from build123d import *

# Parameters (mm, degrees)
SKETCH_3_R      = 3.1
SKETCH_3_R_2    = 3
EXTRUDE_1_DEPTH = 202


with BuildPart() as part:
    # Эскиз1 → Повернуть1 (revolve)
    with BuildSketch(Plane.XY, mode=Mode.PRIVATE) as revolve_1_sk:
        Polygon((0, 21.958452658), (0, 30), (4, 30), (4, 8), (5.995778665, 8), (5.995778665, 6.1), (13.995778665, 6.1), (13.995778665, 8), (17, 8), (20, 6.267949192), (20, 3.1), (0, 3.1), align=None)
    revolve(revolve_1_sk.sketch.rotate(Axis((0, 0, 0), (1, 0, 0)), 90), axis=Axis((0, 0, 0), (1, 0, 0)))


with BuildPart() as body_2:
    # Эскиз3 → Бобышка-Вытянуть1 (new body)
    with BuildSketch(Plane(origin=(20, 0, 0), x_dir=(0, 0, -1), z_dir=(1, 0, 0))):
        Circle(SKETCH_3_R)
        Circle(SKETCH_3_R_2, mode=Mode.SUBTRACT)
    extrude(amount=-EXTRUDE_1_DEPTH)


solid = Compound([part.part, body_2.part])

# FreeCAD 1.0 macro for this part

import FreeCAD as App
import Part
import Sketcher
from FreeCAD import Vector
Q = App.Units.Quantity

doc = App.newDocument("Part")
body = doc.addObject("PartDesign::Body", "Body")

sketch1 = body.newObject("Sketcher::SketchObject", "Sketch")
sketch1.AttachmentSupport = (doc.getObject("XY_Plane"), [""])
sketch1.MapMode = "FlatFace"
sketch1.addGeometry(Part.LineSegment(Vector(0, 30, 0), Vector(0, 3.1, 0)), False)
sketch1.addGeometry(Part.LineSegment(Vector(0, 3.1, 0), Vector(20, 3.1, 0)), False)
sketch1.addGeometry(Part.LineSegment(Vector(20, 3.1, 0), Vector(20, 6.3, 0)), False)
sketch1.addGeometry(Part.LineSegment(Vector(20, 6.3, 0), Vector(17, 8, 0)), False)
sketch1.addGeometry(Part.LineSegment(Vector(17, 8, 0), Vector(14, 8, 0)), False)
sketch1.addGeometry(Part.LineSegment(Vector(14, 8, 0), Vector(14, 6.1, 0)), False)
sketch1.addGeometry(Part.LineSegment(Vector(14, 6.1, 0), Vector(6, 6.1, 0)), False)
sketch1.addGeometry(Part.LineSegment(Vector(6, 6.1, 0), Vector(6, 8, 0)), False)
sketch1.addGeometry(Part.LineSegment(Vector(6, 8, 0), Vector(4, 8, 0)), False)
sketch1.addGeometry(Part.LineSegment(Vector(4, 8, 0), Vector(4, 30, 0)), False)
sketch1.addGeometry(Part.LineSegment(Vector(4, 30, 0), Vector(0, 30, 0)), False)
sketch1.addConstraint(Sketcher.Constraint("Coincident", 0, 2, 1, 1))
sketch1.addConstraint(Sketcher.Constraint("Coincident", 1, 2, 2, 1))
sketch1.addConstraint(Sketcher.Constraint("Coincident", 2, 2, 3, 1))
sketch1.addConstraint(Sketcher.Constraint("Coincident", 3, 2, 4, 1))
sketch1.addConstraint(Sketcher.Constraint("Coincident", 4, 2, 5, 1))
sketch1.addConstraint(Sketcher.Constraint("Coincident", 5, 2, 6, 1))
sketch1.addConstraint(Sketcher.Constraint("Coincident", 6, 2, 7, 1))
sketch1.addConstraint(Sketcher.Constraint("Coincident", 7, 2, 8, 1))
sketch1.addConstraint(Sketcher.Constraint("Coincident", 8, 2, 9, 1))
sketch1.addConstraint(Sketcher.Constraint("Coincident", 9, 2, 10, 1))
sketch1.addConstraint(Sketcher.Constraint("Coincident", 10, 2, 0, 1))
sketch1.addConstraint(Sketcher.Constraint("Vertical", 0))
sketch1.addConstraint(Sketcher.Constraint("Horizontal", 1))
sketch1.addConstraint(Sketcher.Constraint("Vertical", 2))
sketch1.addConstraint(Sketcher.Constraint("Horizontal", 4))
sketch1.addConstraint(Sketcher.Constraint("Vertical", 5))
sketch1.addConstraint(Sketcher.Constraint("Horizontal", 6))
sketch1.addConstraint(Sketcher.Constraint("Vertical", 7))
sketch1.addConstraint(Sketcher.Constraint("Horizontal", 8))
sketch1.addConstraint(Sketcher.Constraint("Vertical", 9))
sketch1.addConstraint(Sketcher.Constraint("Horizontal", 10))
sketch1.addConstraint(Sketcher.Constraint("PointOnObject", 0, 2, -2))
sketch1.addConstraint(Sketcher.Constraint("Horizontal", 4, 2, 7, 2))
sketch1.addConstraint(Sketcher.Constraint("DistanceX", 1, 1, 1, 2, Q("20 mm")))
sketch1.addConstraint(Sketcher.Constraint("DistanceX", 6, 2, 6, 1, Q("8 mm")))
sketch1.addConstraint(Sketcher.Constraint("DistanceX", 10, 2, 10, 1, Q("4 mm")))
sketch1.addConstraint(Sketcher.Constraint("DistanceY", 9, 1, 9, 2, Q("22 mm")))
sketch1.addConstraint(Sketcher.Constraint("Angle", 3, Q("150 deg")))
sketch1.addConstraint(Sketcher.Constraint("DistanceY", 0, 2, 0, 1, Q("26.9 mm")))
sketch1.addConstraint(Sketcher.Constraint("DistanceY", 5, 2, 5, 1, Q("1.9 mm")))
sketch1.addConstraint(Sketcher.Constraint("DistanceX", -1, 1, 3, 2, Q("17 mm")))
sketch1.addConstraint(Sketcher.Constraint("DistanceY", -1, 1, 3, 2, Q("8 mm")))
sketch1.addConstraint(Sketcher.Constraint("DistanceX", 4, 2, 4, 1, Q("3.004221 mm")))
revolution = body.newObject("PartDesign::Revolution", "Revolution")
revolution.Profile = sketch1
revolution.ReferenceAxis = (sketch1, ["H_Axis"])
revolution.Angle = 360
body2 = doc.addObject("PartDesign::Body", "Body001")

sketch2 = body2.newObject("Sketcher::SketchObject", "Sketch001")
sketch2.AttachmentSupport = (doc.getObject("YZ_Plane001"), [""])
sketch2.MapMode = "FlatFace"
sketch2.AttachmentOffset = App.Placement(Vector(0, 0, 20), App.Rotation())
sketch2.addGeometry(Part.Circle(Vector(0, 0, 0), Vector(0, 0, 1), 3.1), False)
sketch2.addGeometry(Part.Circle(Vector(0, 0, 0), Vector(0, 0, 1), 3), False)
sketch2.addConstraint(Sketcher.Constraint("Coincident", 0, 3, -1, 1))
sketch2.addConstraint(Sketcher.Constraint("Coincident", 1, 3, -1, 1))
sketch2.addConstraint(Sketcher.Constraint("Diameter", 1, Q("6 mm")))
sketch2.addConstraint(Sketcher.Constraint("Diameter", 0, Q("6.2 mm")))
pad1 = body2.newObject("PartDesign::Pad", "Pad")
pad1.Profile = sketch2
pad1.Length = 202
pad1.Reversed = True

doc.recompute()
